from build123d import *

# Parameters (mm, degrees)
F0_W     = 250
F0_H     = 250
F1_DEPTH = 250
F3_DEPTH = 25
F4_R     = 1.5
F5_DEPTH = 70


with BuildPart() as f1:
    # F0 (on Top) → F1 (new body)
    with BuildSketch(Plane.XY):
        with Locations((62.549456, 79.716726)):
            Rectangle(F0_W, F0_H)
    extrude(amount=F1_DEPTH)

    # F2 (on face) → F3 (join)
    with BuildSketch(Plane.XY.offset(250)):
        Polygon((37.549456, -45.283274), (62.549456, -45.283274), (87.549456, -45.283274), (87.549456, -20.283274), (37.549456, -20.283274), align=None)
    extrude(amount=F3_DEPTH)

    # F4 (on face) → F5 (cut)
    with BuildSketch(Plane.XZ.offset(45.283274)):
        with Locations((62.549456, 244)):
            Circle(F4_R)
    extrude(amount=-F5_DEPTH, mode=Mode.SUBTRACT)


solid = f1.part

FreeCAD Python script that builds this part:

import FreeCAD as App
import Part
import Sketcher
Q = App.Units.Quantity


def add_polygon(sketch, points):
    """Adds a closed chain of lines whose ends are joined by coincident constraints."""
    first, n = sketch.GeometryCount, len(points)
    for a, b in zip(points, points[1:] + points[:1]):
        sketch.addGeometry(Part.LineSegment(App.Vector(*a, 0), App.Vector(*b, 0)), False)
    for i in range(n):
        sketch.addConstraint(Sketcher.Constraint("Coincident", first + i, 2, first + (i + 1) % n, 1))

doc = App.newDocument("Part")
params = doc.addObject("Spreadsheet::Sheet", "Params")
for row, (alias, value) in enumerate([
    ("sketch1_width", "250 mm"),
    ("pad1_length", "250 mm"),
    ("sketch2_width", "50 mm"),
    ("sketch2_height", "25 mm"),
    ("pad2_length", "25 mm"),
    ("sketch3_diameter", "3 mm"),
    ("pocket1_length", "70 mm"),
], start=1):
    params.set(f"A{row}", alias)
    params.set(f"B{row}", "=" + value)
    params.setAlias(f"B{row}", alias)

body = doc.addObject("PartDesign::Body", "Body")

# Sketch on XY plane
sketch1 = body.newObject("Sketcher::SketchObject", "Sketch")
sketch1.AttachmentSupport = (doc.getObject("XY_Plane"), [""])
sketch1.MapMode = "FlatFace"
add_polygon(sketch1, [(-62.450544, 204.716726), (-62.450544, -45.283274), (187.549456, -45.283274), (187.549456, 204.716726)])  # lines 0-3
sketch1.addConstraint(Sketcher.Constraint("Vertical", 0))
sketch1.addConstraint(Sketcher.Constraint("Horizontal", 1))
sketch1.addConstraint(Sketcher.Constraint("Vertical", 2))
sketch1.addConstraint(Sketcher.Constraint("Horizontal", 3))
sketch1.addConstraint(Sketcher.Constraint("Equal", 3, 0))
sketch1.addConstraint(Sketcher.Constraint("DistanceX", 1, 1, 1, 2, Q("250 mm")))
sketch1.addConstraint(Sketcher.Constraint("DistanceX", 0, 2, -1, 1, Q("62.450544 mm")))
sketch1.addConstraint(Sketcher.Constraint("DistanceY", 0, 2, -1, 1, Q("45.283274 mm")))
sketch1.setExpression("Constraints[9]", "Params.sketch1_width")
pad1 = body.newObject("PartDesign::Pad", "Pad")
pad1.Profile = sketch1
pad1.setExpression("Length", "Params.pad1_length")

# Sketch on XY plane
sketch2 = body.newObject("Sketcher::SketchObject", "Sketch001")
sketch2.AttachmentSupport = (doc.getObject("XY_Plane"), [""])
sketch2.MapMode = "FlatFace"
sketch2.AttachmentOffset = App.Placement(App.Vector(0, 0, 250), App.Rotation())
add_polygon(sketch2, [(37.549456, -45.283274), (87.549456, -45.283274), (87.549456, -20.283274), (37.549456, -20.283274)])  # lines 0-3
sketch2.addConstraint(Sketcher.Constraint("Horizontal", 0))
sketch2.addConstraint(Sketcher.Constraint("Vertical", 1))
sketch2.addConstraint(Sketcher.Constraint("Horizontal", 2))
sketch2.addConstraint(Sketcher.Constraint("Vertical", 3))
sketch2.addConstraint(Sketcher.Constraint("DistanceX", 0, 1, 0, 2, Q("50 mm")))
sketch2.addConstraint(Sketcher.Constraint("DistanceY", 1, 1, 1, 2, Q("25 mm")))
sketch2.addConstraint(Sketcher.Constraint("DistanceX", -1, 1, 0, 2, Q("87.549456 mm")))
sketch2.addConstraint(Sketcher.Constraint("DistanceY", 0, 2, -1, 1, Q("45.283274 mm")))
sketch2.setExpression("Constraints[8]", "Params.sketch2_width")
sketch2.setExpression("Constraints[9]", "Params.sketch2_height")
pad2 = body.newObject("PartDesign::Pad", "Pad001")
pad2.Profile = sketch2
pad2.setExpression("Length", "Params.pad2_length")

# Sketch on XZ plane
sketch3 = body.newObject("Sketcher::SketchObject", "Sketch002")
sketch3.AttachmentSupport = (doc.getObject("XZ_Plane"), [""])
sketch3.MapMode = "FlatFace"
sketch3.AttachmentOffset = App.Placement(App.Vector(0, 0, 45.283274), App.Rotation())
sketch3.addGeometry(Part.Circle(App.Vector(62.549456, 244, 0), App.Vector(0, 0, 1), 1.5), False)
sketch3.addConstraint(Sketcher.Constraint("Diameter", 0, Q("3 mm")))
sketch3.addConstraint(Sketcher.Constraint("DistanceY", -1, 1, 0, 3, Q("244 mm")))
sketch3.addConstraint(Sketcher.Constraint("DistanceX", -1, 1, 0, 3, Q("62.549456 mm")))
sketch3.setExpression("Constraints[0]", "Params.sketch3_diameter")
pocket1 = body.newObject("PartDesign::Pocket", "Pocket")
pocket1.Profile = sketch3
pocket1.setExpression("Length", "Params.pocket1_length")

doc.recompute()
